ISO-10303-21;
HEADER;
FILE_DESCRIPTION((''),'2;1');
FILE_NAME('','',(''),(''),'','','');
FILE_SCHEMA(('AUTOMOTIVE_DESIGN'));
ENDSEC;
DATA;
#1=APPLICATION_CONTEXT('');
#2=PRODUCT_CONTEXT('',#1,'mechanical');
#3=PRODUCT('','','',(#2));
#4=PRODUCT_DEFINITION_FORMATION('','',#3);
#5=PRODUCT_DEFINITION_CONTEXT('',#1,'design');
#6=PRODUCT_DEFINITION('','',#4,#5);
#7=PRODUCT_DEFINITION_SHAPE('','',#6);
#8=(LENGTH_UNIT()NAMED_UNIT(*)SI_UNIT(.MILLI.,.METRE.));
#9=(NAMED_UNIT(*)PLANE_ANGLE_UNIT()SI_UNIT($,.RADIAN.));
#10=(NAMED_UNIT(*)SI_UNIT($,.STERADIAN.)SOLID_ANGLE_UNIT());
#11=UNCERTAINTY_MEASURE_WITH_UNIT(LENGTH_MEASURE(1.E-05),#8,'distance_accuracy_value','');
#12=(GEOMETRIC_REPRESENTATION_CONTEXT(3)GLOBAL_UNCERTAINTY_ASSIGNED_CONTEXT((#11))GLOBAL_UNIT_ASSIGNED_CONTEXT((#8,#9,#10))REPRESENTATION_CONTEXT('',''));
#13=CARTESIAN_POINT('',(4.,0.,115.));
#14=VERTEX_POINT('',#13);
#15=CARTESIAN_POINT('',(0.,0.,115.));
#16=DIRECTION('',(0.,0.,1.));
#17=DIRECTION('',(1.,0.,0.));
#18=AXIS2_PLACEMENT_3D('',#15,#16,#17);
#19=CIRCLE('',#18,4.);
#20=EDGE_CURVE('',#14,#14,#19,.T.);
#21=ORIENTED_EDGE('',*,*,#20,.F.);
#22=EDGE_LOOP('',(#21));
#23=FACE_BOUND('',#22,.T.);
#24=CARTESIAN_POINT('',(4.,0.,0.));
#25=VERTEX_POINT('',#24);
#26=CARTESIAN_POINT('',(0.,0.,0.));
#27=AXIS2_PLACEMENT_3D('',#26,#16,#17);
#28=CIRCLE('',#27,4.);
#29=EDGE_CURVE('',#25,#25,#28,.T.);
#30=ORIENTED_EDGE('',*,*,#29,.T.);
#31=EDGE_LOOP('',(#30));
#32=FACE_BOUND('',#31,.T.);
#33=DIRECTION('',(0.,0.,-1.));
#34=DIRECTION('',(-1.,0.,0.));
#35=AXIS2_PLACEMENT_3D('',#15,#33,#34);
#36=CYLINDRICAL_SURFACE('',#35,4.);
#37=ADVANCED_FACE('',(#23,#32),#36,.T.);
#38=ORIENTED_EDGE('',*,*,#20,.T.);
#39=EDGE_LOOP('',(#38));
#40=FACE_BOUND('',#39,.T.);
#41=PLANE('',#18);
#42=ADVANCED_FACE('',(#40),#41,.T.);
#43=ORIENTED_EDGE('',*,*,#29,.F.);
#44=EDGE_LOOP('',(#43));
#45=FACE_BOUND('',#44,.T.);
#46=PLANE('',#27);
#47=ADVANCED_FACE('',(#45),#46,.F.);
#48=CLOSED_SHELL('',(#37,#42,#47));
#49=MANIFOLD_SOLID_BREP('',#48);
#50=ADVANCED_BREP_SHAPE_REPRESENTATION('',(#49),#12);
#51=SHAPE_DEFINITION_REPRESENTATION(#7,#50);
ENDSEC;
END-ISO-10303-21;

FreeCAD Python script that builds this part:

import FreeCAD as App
import Part
import Sketcher
from FreeCAD import Vector

doc = App.newDocument("Part")
body = doc.addObject("PartDesign::Body", "Body")

sketch1 = doc.addObject("Sketcher::SketchObject", "Sketch")
body.addObject(sketch1)
sketch1.AttachmentSupport = (doc.XY_Plane, [""])
sketch1.MapMode = "FlatFace"
sketch1.addGeometry(Part.Circle(Vector(0, 0, 0), Vector(0, 0, 1), 4), False)
sketch1.addConstraint([
    Sketcher.Constraint("Coincident", 0, 3, -1, 1),
    Sketcher.Constraint("Diameter", 0, 8.0),
])
pad1 = doc.addObject("PartDesign::Pad", "Pad")
body.addObject(pad1)
pad1.Profile = sketch1
pad1.Length = 115

doc.recompute()
